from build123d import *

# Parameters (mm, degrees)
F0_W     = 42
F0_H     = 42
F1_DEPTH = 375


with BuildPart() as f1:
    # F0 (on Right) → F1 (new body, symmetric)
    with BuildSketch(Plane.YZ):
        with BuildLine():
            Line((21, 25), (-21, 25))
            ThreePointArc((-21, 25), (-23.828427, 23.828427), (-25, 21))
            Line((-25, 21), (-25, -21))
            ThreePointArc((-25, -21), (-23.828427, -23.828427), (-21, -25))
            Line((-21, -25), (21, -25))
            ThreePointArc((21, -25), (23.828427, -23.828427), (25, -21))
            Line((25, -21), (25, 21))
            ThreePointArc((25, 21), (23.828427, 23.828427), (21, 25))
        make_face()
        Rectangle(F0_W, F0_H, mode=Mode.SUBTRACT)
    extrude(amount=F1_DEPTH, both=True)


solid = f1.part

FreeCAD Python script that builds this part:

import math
import FreeCAD as App
import Part
import Sketcher
from FreeCAD import Vector
Q = App.Units.Quantity

doc = App.newDocument("Part")
body = doc.addObject("PartDesign::Body", "Body")

# Sketch on YZ plane
sketch1 = body.newObject("Sketcher::SketchObject", "Sketch")
sketch1.AttachmentSupport = (doc.getObject("YZ_Plane"), [""])
sketch1.MapMode = "FlatFace"
sketch1.addGeometry([
    Part.LineSegment(Vector(21, 25, 0), Vector(-21, 25, 0)),  # 0
    Part.ArcOfCircle(Part.Circle(Vector(-21, 21, 0), Vector(0, 0, 1), 4), math.radians(90.000006), math.radians(179.999994)),  # 1
    Part.LineSegment(Vector(-25, 21, 0), Vector(-25, -21, 0)),  # 2
    Part.ArcOfCircle(Part.Circle(Vector(-21, -21, 0), Vector(0, 0, 1), 4), math.radians(-179.999994), math.radians(-90.000006)),  # 3
    Part.LineSegment(Vector(-21, -25, 0), Vector(21, -25, 0)),  # 4
    Part.ArcOfCircle(Part.Circle(Vector(21, -21, 0), Vector(0, 0, 1), 4), math.radians(-89.999994), math.radians(-0.000006)),  # 5
    Part.LineSegment(Vector(25, -21, 0), Vector(25, 21, 0)),  # 6
    Part.ArcOfCircle(Part.Circle(Vector(21, 21, 0), Vector(0, 0, 1), 4), math.radians(0.000006), math.radians(89.999994)),  # 7
    Part.LineSegment(Vector(21, -21, 0), Vector(-21, -21, 0)),  # 8
    Part.LineSegment(Vector(-21, -21, 0), Vector(-21, 21, 0)),  # 9
    Part.LineSegment(Vector(-21, 21, 0), Vector(21, 21, 0)),  # 10
    Part.LineSegment(Vector(21, 21, 0), Vector(21, -21, 0)),  # 11
], False)
sketch1.addConstraint([
    Sketcher.Constraint("Tangent", 0, 2, 1, 1),
    Sketcher.Constraint("Tangent", 1, 2, 2, 1),
    Sketcher.Constraint("Tangent", 2, 2, 3, 1),
    Sketcher.Constraint("Tangent", 3, 2, 4, 1),
    Sketcher.Constraint("Tangent", 4, 2, 5, 1),
    Sketcher.Constraint("Tangent", 5, 2, 6, 1),
    Sketcher.Constraint("Tangent", 6, 2, 7, 1),
    Sketcher.Constraint("Tangent", 7, 2, 0, 1),
    Sketcher.Constraint("Coincident", 8, 2, 9, 1),
    Sketcher.Constraint("Coincident", 9, 2, 10, 1),
    Sketcher.Constraint("Coincident", 10, 2, 11, 1),
    Sketcher.Constraint("Coincident", 11, 2, 8, 1),
    Sketcher.Constraint("Horizontal", 0),
    Sketcher.Constraint("Vertical", 2),
    Sketcher.Constraint("Horizontal", 4),
    Sketcher.Constraint("Vertical", 6),
    Sketcher.Constraint("Horizontal", 8),
    Sketcher.Constraint("Vertical", 9),
    Sketcher.Constraint("Horizontal", 10),
    Sketcher.Constraint("Vertical", 11),
    Sketcher.Constraint("Coincident", 8, 2, 3, 3),
    Sketcher.Constraint("Coincident", 9, 2, 1, 3),
    Sketcher.Constraint("Coincident", 10, 2, 7, 3),
    Sketcher.Constraint("Equal", 3, 5),
    Sketcher.Constraint("Symmetric", 1, 3, 5, 3, -1, 1),
    Sketcher.Constraint("Equal", 10, 2),
    Sketcher.Constraint("Radius", 1, Q("4 mm")),
    Sketcher.Constraint("DistanceX", 0, 2, 0, 1, Q("42 mm")),
])
pad1 = body.newObject("PartDesign::Pad", "Pad")
pad1.Profile = sketch1
pad1.Length = 750
pad1.Midplane = True

doc.recompute()
